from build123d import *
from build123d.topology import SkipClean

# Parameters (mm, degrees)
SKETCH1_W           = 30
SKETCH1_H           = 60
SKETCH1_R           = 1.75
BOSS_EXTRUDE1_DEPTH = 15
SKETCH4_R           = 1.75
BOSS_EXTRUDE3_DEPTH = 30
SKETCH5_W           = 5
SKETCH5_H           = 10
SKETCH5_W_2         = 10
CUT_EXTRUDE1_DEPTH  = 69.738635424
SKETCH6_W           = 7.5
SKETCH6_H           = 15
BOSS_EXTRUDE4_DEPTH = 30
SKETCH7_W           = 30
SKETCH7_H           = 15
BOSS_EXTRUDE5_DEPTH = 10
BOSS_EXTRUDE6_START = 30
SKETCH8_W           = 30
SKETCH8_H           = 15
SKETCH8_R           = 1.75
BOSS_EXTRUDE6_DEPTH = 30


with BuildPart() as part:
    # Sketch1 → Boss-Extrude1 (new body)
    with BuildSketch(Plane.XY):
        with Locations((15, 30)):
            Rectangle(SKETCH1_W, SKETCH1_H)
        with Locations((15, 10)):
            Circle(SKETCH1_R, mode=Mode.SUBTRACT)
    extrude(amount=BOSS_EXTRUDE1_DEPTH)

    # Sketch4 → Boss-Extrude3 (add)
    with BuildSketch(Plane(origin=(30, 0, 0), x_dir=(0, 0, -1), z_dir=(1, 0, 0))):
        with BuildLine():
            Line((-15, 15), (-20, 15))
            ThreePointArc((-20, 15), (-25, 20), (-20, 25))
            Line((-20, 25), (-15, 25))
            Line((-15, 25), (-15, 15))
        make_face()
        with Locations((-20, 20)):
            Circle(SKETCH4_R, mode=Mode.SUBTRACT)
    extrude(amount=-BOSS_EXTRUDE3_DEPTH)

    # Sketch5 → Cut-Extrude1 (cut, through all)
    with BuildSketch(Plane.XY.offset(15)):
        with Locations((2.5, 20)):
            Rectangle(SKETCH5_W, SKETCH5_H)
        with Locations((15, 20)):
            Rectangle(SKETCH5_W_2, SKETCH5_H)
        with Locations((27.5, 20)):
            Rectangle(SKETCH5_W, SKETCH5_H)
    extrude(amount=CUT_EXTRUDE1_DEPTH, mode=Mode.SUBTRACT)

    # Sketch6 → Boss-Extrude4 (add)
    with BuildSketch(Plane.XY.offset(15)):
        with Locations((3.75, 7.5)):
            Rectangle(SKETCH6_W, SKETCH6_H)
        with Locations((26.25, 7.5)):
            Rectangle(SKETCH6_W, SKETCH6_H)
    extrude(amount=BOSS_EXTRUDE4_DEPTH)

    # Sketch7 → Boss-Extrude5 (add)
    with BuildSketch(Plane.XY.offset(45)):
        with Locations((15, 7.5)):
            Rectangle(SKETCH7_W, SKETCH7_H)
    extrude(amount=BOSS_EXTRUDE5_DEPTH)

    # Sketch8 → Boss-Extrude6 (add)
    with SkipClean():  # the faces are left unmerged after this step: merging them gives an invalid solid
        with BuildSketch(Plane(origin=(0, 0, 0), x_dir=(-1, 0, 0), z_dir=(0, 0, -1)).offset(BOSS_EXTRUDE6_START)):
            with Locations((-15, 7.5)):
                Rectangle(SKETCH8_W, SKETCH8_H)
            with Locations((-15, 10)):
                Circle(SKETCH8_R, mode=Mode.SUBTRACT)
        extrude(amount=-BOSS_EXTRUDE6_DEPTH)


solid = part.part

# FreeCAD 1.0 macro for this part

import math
import FreeCAD as App
import Part
import Sketcher

doc = App.newDocument("Part")
body = doc.addObject("PartDesign::Body", "Body")

sketch1 = body.newObject("Sketcher::SketchObject", "Sketch")
sketch1.AttachmentSupport = (doc.getObject("XY_Plane"), [""])
sketch1.MapMode = "FlatFace"
sketch1.addGeometry(Part.LineSegment(App.Vector(0, 60, 0), App.Vector(0, 0, 0)), False)
sketch1.addGeometry(Part.LineSegment(App.Vector(0, 0, 0), App.Vector(30, 0, 0)), False)
sketch1.addGeometry(Part.LineSegment(App.Vector(30, 0, 0), App.Vector(30, 60, 0)), False)
sketch1.addGeometry(Part.LineSegment(App.Vector(30, 60, 0), App.Vector(0, 60, 0)), False)
sketch1.addGeometry(Part.Circle(App.Vector(15, 10, 0), App.Vector(0, 0, 1), 1.8), False)
sketch1.addConstraint(Sketcher.Constraint("Coincident", 0, 2, 1, 1))
sketch1.addConstraint(Sketcher.Constraint("Coincident", 1, 2, 2, 1))
sketch1.addConstraint(Sketcher.Constraint("Coincident", 2, 2, 3, 1))
sketch1.addConstraint(Sketcher.Constraint("Coincident", 3, 2, 0, 1))
sketch1.addConstraint(Sketcher.Constraint("Vertical", 0))
sketch1.addConstraint(Sketcher.Constraint("Horizontal", 1))
sketch1.addConstraint(Sketcher.Constraint("Vertical", 2))
sketch1.addConstraint(Sketcher.Constraint("Horizontal", 3))
sketch1.addConstraint(Sketcher.Constraint("Coincident", 0, 2, -1, 1))
sketch1.addConstraint(Sketcher.Constraint("Diameter", 4, 3.5))
sketch1.addConstraint(Sketcher.Constraint("DistanceX", 1, 1, 1, 2, 30.0))
sketch1.addConstraint(Sketcher.Constraint("DistanceY", 0, 2, 0, 1, 60.0))
sketch1.addConstraint(Sketcher.Constraint("DistanceX", -1, 1, 4, 3, 15.0))
sketch1.addConstraint(Sketcher.Constraint("DistanceY", -1, 1, 4, 3, 10.0))
pad1 = body.newObject("PartDesign::Pad", "Pad")
pad1.Profile = sketch1
pad1.Length = 15

sketch2 = body.newObject("Sketcher::SketchObject", "Sketch001")
sketch2.AttachmentSupport = (doc.getObject("YZ_Plane"), [""])
sketch2.MapMode = "FlatFace"
sketch2.AttachmentOffset = App.Placement(App.Vector(0, 0, 30), App.Rotation())
sketch2.addGeometry(Part.LineSegment(App.Vector(15, 20, 0), App.Vector(15, 15, 0)), False)
sketch2.addGeometry(Part.LineSegment(App.Vector(15, 15, 0), App.Vector(25, 15, 0)), False)
sketch2.addGeometry(Part.LineSegment(App.Vector(25, 15, 0), App.Vector(25, 20, 0)), False)
sketch2.addGeometry(Part.ArcOfCircle(Part.Circle(App.Vector(20, 20, 0), App.Vector(0, 0, 1), 5), math.radians(0), math.radians(180)), False)
sketch2.addGeometry(Part.Circle(App.Vector(20, 20, 0), App.Vector(0, 0, 1), 1.8), False)
sketch2.addConstraint(Sketcher.Constraint("Coincident", 0, 2, 1, 1))
sketch2.addConstraint(Sketcher.Constraint("Coincident", 1, 2, 2, 1))
sketch2.addConstraint(Sketcher.Constraint("Tangent", 2, 2, 3, 1))
sketch2.addConstraint(Sketcher.Constraint("Tangent", 3, 2, 0, 1))
sketch2.addConstraint(Sketcher.Constraint("Vertical", 0))
sketch2.addConstraint(Sketcher.Constraint("Horizontal", 1))
sketch2.addConstraint(Sketcher.Constraint("Vertical", 2))
sketch2.addConstraint(Sketcher.Constraint("Coincident", 4, 3, 3, 3))
sketch2.addConstraint(Sketcher.Constraint("Radius", 3, 5.0))
sketch2.addConstraint(Sketcher.Constraint("Diameter", 4, 3.5))
sketch2.addConstraint(Sketcher.Constraint("DistanceY", 0, 2, 0, 1, 5.0))
sketch2.addConstraint(Sketcher.Constraint("DistanceX", -1, 1, 3, 3, 20.0))
sketch2.addConstraint(Sketcher.Constraint("DistanceY", -1, 1, 3, 3, 20.0))
pad2 = body.newObject("PartDesign::Pad", "Pad001")
pad2.Profile = sketch2
pad2.Length = 30
pad2.Reversed = True

sketch3 = body.newObject("Sketcher::SketchObject", "Sketch002")
sketch3.AttachmentSupport = (doc.getObject("XY_Plane"), [""])
sketch3.MapMode = "FlatFace"
sketch3.AttachmentOffset = App.Placement(App.Vector(0, 0, 15), App.Rotation())
sketch3.addGeometry(Part.LineSegment(App.Vector(0, 25, 0), App.Vector(0, 15, 0)), False)
sketch3.addGeometry(Part.LineSegment(App.Vector(0, 15, 0), App.Vector(5, 15, 0)), False)
sketch3.addGeometry(Part.LineSegment(App.Vector(5, 15, 0), App.Vector(5, 25, 0)), False)
sketch3.addGeometry(Part.LineSegment(App.Vector(5, 25, 0), App.Vector(0, 25, 0)), False)
sketch3.addGeometry(Part.LineSegment(App.Vector(10, 25, 0), App.Vector(10, 15, 0)), False)
sketch3.addGeometry(Part.LineSegment(App.Vector(10, 15, 0), App.Vector(20, 15, 0)), False)
sketch3.addGeometry(Part.LineSegment(App.Vector(20, 15, 0), App.Vector(20, 25, 0)), False)
sketch3.addGeometry(Part.LineSegment(App.Vector(20, 25, 0), App.Vector(10, 25, 0)), False)
sketch3.addGeometry(Part.LineSegment(App.Vector(25, 25, 0), App.Vector(25, 15, 0)), False)
sketch3.addGeometry(Part.LineSegment(App.Vector(25, 15, 0), App.Vector(30, 15, 0)), False)
sketch3.addGeometry(Part.LineSegment(App.Vector(30, 15, 0), App.Vector(30, 25, 0)), False)
sketch3.addGeometry(Part.LineSegment(App.Vector(30, 25, 0), App.Vector(25, 25, 0)), False)
sketch3.addConstraint(Sketcher.Constraint("Coincident", 0, 2, 1, 1))
sketch3.addConstraint(Sketcher.Constraint("Coincident", 1, 2, 2, 1))
sketch3.addConstraint(Sketcher.Constraint("Coincident", 2, 2, 3, 1))
sketch3.addConstraint(Sketcher.Constraint("Coincident", 3, 2, 0, 1))
sketch3.addConstraint(Sketcher.Constraint("Coincident", 4, 2, 5, 1))
sketch3.addConstraint(Sketcher.Constraint("Coincident", 5, 2, 6, 1))
sketch3.addConstraint(Sketcher.Constraint("Coincident", 6, 2, 7, 1))
sketch3.addConstraint(Sketcher.Constraint("Coincident", 7, 2, 4, 1))
sketch3.addConstraint(Sketcher.Constraint("Coincident", 8, 2, 9, 1))
sketch3.addConstraint(Sketcher.Constraint("Coincident", 9, 2, 10, 1))
sketch3.addConstraint(Sketcher.Constraint("Coincident", 10, 2, 11, 1))
sketch3.addConstraint(Sketcher.Constraint("Coincident", 11, 2, 8, 1))
sketch3.addConstraint(Sketcher.Constraint("Vertical", 0))
sketch3.addConstraint(Sketcher.Constraint("Horizontal", 1))
sketch3.addConstraint(Sketcher.Constraint("Vertical", 2))
sketch3.addConstraint(Sketcher.Constraint("Horizontal", 3))
sketch3.addConstraint(Sketcher.Constraint("Vertical", 4))
sketch3.addConstraint(Sketcher.Constraint("Horizontal", 5))
sketch3.addConstraint(Sketcher.Constraint("Vertical", 6))
sketch3.addConstraint(Sketcher.Constraint("Horizontal", 7))
sketch3.addConstraint(Sketcher.Constraint("Vertical", 8))
sketch3.addConstraint(Sketcher.Constraint("Horizontal", 9))
sketch3.addConstraint(Sketcher.Constraint("Vertical", 10))
sketch3.addConstraint(Sketcher.Constraint("Horizontal", 11))
sketch3.addConstraint(Sketcher.Constraint("PointOnObject", 0, 2, -2))
sketch3.addConstraint(Sketcher.Constraint("Horizontal", 1, 2, 4, 2))
sketch3.addConstraint(Sketcher.Constraint("Horizontal", 3, 2, 6, 2))
sketch3.addConstraint(Sketcher.Constraint("Horizontal", 5, 2, 8, 2))
sketch3.addConstraint(Sketcher.Constraint("Horizontal", 7, 2, 10, 2))
sketch3.addConstraint(Sketcher.Constraint("Equal", 3, 9))
sketch3.addConstraint(Sketcher.Constraint("Equal", 7, 0))
sketch3.addConstraint(Sketcher.Constraint("DistanceX", 1, 1, 1, 2, 5.0))
sketch3.addConstraint(Sketcher.Constraint("DistanceX", 5, 1, 5, 2, 10.0))
sketch3.addConstraint(Sketcher.Constraint("DistanceY", -1, 1, 0, 2, 15.0))
sketch3.addConstraint(Sketcher.Constraint("DistanceX", -1, 1, 4, 2, 10.0))
sketch3.addConstraint(Sketcher.Constraint("DistanceX", -1, 1, 8, 2, 25.0))
pocket1 = body.newObject("PartDesign::Pocket", "Pocket")
pocket1.Profile = sketch3
pocket1.Type = "ThroughAll"
pocket1.Reversed = True

sketch4 = body.newObject("Sketcher::SketchObject", "Sketch003")
sketch4.AttachmentSupport = (doc.getObject("XY_Plane"), [""])
sketch4.MapMode = "FlatFace"
sketch4.AttachmentOffset = App.Placement(App.Vector(0, 0, 15), App.Rotation())
sketch4.addGeometry(Part.LineSegment(App.Vector(0, 15, 0), App.Vector(0, 0, 0)), False)
sketch4.addGeometry(Part.LineSegment(App.Vector(0, 0, 0), App.Vector(8, 0, 0)), False)
sketch4.addGeometry(Part.LineSegment(App.Vector(8, 0, 0), App.Vector(8, 15, 0)), False)
sketch4.addGeometry(Part.LineSegment(App.Vector(8, 15, 0), App.Vector(0, 15, 0)), False)
sketch4.addGeometry(Part.LineSegment(App.Vector(22, 15, 0), App.Vector(22, 0, 0)), False)
sketch4.addGeometry(Part.LineSegment(App.Vector(22, 0, 0), App.Vector(30, 0, 0)), False)
sketch4.addGeometry(Part.LineSegment(App.Vector(30, 0, 0), App.Vector(30, 15, 0)), False)
sketch4.addGeometry(Part.LineSegment(App.Vector(30, 15, 0), App.Vector(22, 15, 0)), False)
sketch4.addConstraint(Sketcher.Constraint("Coincident", 0, 2, 1, 1))
sketch4.addConstraint(Sketcher.Constraint("Coincident", 1, 2, 2, 1))
sketch4.addConstraint(Sketcher.Constraint("Coincident", 2, 2, 3, 1))
sketch4.addConstraint(Sketcher.Constraint("Coincident", 3, 2, 0, 1))
sketch4.addConstraint(Sketcher.Constraint("Coincident", 4, 2, 5, 1))
sketch4.addConstraint(Sketcher.Constraint("Coincident", 5, 2, 6, 1))
sketch4.addConstraint(Sketcher.Constraint("Coincident", 6, 2, 7, 1))
sketch4.addConstraint(Sketcher.Constraint("Coincident", 7, 2, 4, 1))
sketch4.addConstraint(Sketcher.Constraint("Vertical", 0))
sketch4.addConstraint(Sketcher.Constraint("Horizontal", 1))
sketch4.addConstraint(Sketcher.Constraint("Vertical", 2))
sketch4.addConstraint(Sketcher.Constraint("Horizontal", 3))
sketch4.addConstraint(Sketcher.Constraint("Vertical", 4))
sketch4.addConstraint(Sketcher.Constraint("Horizontal", 5))
sketch4.addConstraint(Sketcher.Constraint("Vertical", 6))
sketch4.addConstraint(Sketcher.Constraint("Horizontal", 7))
sketch4.addConstraint(Sketcher.Constraint("Coincident", 0, 2, -1, 1))
sketch4.addConstraint(Sketcher.Constraint("PointOnObject", 4, 2, -1))
sketch4.addConstraint(Sketcher.Constraint("Horizontal", 3, 2, 6, 2))
sketch4.addConstraint(Sketcher.Constraint("Equal", 3, 5))
sketch4.addConstraint(Sketcher.Constraint("DistanceY", 0, 2, 0, 1, 15.0))
sketch4.addConstraint(Sketcher.Constraint("DistanceX", 1, 1, 1, 2, 7.5))
sketch4.addConstraint(Sketcher.Constraint("DistanceX", -1, 1, 5, 2, 30.0))
pad3 = body.newObject("PartDesign::Pad", "Pad002")
pad3.Profile = sketch4
pad3.Length = 30

sketch5 = body.newObject("Sketcher::SketchObject", "Sketch004")
sketch5.AttachmentSupport = (doc.getObject("XY_Plane"), [""])
sketch5.MapMode = "FlatFace"
sketch5.AttachmentOffset = App.Placement(App.Vector(0, 0, 45), App.Rotation())
sketch5.addGeometry(Part.LineSegment(App.Vector(0, 15, 0), App.Vector(0, 0, 0)), False)
sketch5.addGeometry(Part.LineSegment(App.Vector(0, 0, 0), App.Vector(30, 0, 0)), False)
sketch5.addGeometry(Part.LineSegment(App.Vector(30, 0, 0), App.Vector(30, 15, 0)), False)
sketch5.addGeometry(Part.LineSegment(App.Vector(30, 15, 0), App.Vector(0, 15, 0)), False)
sketch5.addConstraint(Sketcher.Constraint("Coincident", 0, 2, 1, 1))
sketch5.addConstraint(Sketcher.Constraint("Coincident", 1, 2, 2, 1))
sketch5.addConstraint(Sketcher.Constraint("Coincident", 2, 2, 3, 1))
sketch5.addConstraint(Sketcher.Constraint("Coincident", 3, 2, 0, 1))
sketch5.addConstraint(Sketcher.Constraint("Vertical", 0))
sketch5.addConstraint(Sketcher.Constraint("Horizontal", 1))
sketch5.addConstraint(Sketcher.Constraint("Vertical", 2))
sketch5.addConstraint(Sketcher.Constraint("Horizontal", 3))
sketch5.addConstraint(Sketcher.Constraint("Coincident", 0, 2, -1, 1))
sketch5.addConstraint(Sketcher.Constraint("DistanceX", 1, 1, 1, 2, 30.0))
sketch5.addConstraint(Sketcher.Constraint("DistanceY", 0, 2, 0, 1, 15.0))
pad4 = body.newObject("PartDesign::Pad", "Pad003")
pad4.Profile = sketch5
pad4.Length = 10

sketch6 = body.newObject("Sketcher::SketchObject", "Sketch005")
sketch6.AttachmentSupport = (doc.getObject("XY_Plane"), [""])
sketch6.MapMode = "FlatFace"
sketch6.AttachmentOffset = App.Placement(App.Vector(0, 0, -30), App.Rotation())
sketch6.addGeometry(Part.LineSegment(App.Vector(30, 15, 0), App.Vector(30, 0, 0)), False)
sketch6.addGeometry(Part.LineSegment(App.Vector(30, 0, 0), App.Vector(0, 0, 0)), False)
sketch6.addGeometry(Part.LineSegment(App.Vector(0, 0, 0), App.Vector(0, 15, 0)), False)
sketch6.addGeometry(Part.LineSegment(App.Vector(0, 15, 0), App.Vector(30, 15, 0)), False)
sketch6.addGeometry(Part.Circle(App.Vector(15, 10, 0), App.Vector(0, 0, 1), 1.8), False)
sketch6.addConstraint(Sketcher.Constraint("Coincident", 0, 2, 1, 1))
sketch6.addConstraint(Sketcher.Constraint("Coincident", 1, 2, 2, 1))
sketch6.addConstraint(Sketcher.Constraint("Coincident", 2, 2, 3, 1))
sketch6.addConstraint(Sketcher.Constraint("Coincident", 3, 2, 0, 1))
sketch6.addConstraint(Sketcher.Constraint("Vertical", 0))
sketch6.addConstraint(Sketcher.Constraint("Horizontal", 1))
sketch6.addConstraint(Sketcher.Constraint("Vertical", 2))
sketch6.addConstraint(Sketcher.Constraint("Horizontal", 3))
sketch6.addConstraint(Sketcher.Constraint("Coincident", 1, 2, -1, 1))
sketch6.addConstraint(Sketcher.Constraint("Diameter", 4, 3.5))
sketch6.addConstraint(Sketcher.Constraint("DistanceX", 1, 2, 1, 1, 30.0))
sketch6.addConstraint(Sketcher.Constraint("DistanceY", 0, 2, 0, 1, 15.0))
sketch6.addConstraint(Sketcher.Constraint("DistanceX", -1, 1, 4, 3, 15.0))
sketch6.addConstraint(Sketcher.Constraint("DistanceY", -1, 1, 4, 3, 10.0))
pad5 = body.newObject("PartDesign::Pad", "Pad004")
pad5.Profile = sketch6
pad5.Length = 30

doc.recompute()
